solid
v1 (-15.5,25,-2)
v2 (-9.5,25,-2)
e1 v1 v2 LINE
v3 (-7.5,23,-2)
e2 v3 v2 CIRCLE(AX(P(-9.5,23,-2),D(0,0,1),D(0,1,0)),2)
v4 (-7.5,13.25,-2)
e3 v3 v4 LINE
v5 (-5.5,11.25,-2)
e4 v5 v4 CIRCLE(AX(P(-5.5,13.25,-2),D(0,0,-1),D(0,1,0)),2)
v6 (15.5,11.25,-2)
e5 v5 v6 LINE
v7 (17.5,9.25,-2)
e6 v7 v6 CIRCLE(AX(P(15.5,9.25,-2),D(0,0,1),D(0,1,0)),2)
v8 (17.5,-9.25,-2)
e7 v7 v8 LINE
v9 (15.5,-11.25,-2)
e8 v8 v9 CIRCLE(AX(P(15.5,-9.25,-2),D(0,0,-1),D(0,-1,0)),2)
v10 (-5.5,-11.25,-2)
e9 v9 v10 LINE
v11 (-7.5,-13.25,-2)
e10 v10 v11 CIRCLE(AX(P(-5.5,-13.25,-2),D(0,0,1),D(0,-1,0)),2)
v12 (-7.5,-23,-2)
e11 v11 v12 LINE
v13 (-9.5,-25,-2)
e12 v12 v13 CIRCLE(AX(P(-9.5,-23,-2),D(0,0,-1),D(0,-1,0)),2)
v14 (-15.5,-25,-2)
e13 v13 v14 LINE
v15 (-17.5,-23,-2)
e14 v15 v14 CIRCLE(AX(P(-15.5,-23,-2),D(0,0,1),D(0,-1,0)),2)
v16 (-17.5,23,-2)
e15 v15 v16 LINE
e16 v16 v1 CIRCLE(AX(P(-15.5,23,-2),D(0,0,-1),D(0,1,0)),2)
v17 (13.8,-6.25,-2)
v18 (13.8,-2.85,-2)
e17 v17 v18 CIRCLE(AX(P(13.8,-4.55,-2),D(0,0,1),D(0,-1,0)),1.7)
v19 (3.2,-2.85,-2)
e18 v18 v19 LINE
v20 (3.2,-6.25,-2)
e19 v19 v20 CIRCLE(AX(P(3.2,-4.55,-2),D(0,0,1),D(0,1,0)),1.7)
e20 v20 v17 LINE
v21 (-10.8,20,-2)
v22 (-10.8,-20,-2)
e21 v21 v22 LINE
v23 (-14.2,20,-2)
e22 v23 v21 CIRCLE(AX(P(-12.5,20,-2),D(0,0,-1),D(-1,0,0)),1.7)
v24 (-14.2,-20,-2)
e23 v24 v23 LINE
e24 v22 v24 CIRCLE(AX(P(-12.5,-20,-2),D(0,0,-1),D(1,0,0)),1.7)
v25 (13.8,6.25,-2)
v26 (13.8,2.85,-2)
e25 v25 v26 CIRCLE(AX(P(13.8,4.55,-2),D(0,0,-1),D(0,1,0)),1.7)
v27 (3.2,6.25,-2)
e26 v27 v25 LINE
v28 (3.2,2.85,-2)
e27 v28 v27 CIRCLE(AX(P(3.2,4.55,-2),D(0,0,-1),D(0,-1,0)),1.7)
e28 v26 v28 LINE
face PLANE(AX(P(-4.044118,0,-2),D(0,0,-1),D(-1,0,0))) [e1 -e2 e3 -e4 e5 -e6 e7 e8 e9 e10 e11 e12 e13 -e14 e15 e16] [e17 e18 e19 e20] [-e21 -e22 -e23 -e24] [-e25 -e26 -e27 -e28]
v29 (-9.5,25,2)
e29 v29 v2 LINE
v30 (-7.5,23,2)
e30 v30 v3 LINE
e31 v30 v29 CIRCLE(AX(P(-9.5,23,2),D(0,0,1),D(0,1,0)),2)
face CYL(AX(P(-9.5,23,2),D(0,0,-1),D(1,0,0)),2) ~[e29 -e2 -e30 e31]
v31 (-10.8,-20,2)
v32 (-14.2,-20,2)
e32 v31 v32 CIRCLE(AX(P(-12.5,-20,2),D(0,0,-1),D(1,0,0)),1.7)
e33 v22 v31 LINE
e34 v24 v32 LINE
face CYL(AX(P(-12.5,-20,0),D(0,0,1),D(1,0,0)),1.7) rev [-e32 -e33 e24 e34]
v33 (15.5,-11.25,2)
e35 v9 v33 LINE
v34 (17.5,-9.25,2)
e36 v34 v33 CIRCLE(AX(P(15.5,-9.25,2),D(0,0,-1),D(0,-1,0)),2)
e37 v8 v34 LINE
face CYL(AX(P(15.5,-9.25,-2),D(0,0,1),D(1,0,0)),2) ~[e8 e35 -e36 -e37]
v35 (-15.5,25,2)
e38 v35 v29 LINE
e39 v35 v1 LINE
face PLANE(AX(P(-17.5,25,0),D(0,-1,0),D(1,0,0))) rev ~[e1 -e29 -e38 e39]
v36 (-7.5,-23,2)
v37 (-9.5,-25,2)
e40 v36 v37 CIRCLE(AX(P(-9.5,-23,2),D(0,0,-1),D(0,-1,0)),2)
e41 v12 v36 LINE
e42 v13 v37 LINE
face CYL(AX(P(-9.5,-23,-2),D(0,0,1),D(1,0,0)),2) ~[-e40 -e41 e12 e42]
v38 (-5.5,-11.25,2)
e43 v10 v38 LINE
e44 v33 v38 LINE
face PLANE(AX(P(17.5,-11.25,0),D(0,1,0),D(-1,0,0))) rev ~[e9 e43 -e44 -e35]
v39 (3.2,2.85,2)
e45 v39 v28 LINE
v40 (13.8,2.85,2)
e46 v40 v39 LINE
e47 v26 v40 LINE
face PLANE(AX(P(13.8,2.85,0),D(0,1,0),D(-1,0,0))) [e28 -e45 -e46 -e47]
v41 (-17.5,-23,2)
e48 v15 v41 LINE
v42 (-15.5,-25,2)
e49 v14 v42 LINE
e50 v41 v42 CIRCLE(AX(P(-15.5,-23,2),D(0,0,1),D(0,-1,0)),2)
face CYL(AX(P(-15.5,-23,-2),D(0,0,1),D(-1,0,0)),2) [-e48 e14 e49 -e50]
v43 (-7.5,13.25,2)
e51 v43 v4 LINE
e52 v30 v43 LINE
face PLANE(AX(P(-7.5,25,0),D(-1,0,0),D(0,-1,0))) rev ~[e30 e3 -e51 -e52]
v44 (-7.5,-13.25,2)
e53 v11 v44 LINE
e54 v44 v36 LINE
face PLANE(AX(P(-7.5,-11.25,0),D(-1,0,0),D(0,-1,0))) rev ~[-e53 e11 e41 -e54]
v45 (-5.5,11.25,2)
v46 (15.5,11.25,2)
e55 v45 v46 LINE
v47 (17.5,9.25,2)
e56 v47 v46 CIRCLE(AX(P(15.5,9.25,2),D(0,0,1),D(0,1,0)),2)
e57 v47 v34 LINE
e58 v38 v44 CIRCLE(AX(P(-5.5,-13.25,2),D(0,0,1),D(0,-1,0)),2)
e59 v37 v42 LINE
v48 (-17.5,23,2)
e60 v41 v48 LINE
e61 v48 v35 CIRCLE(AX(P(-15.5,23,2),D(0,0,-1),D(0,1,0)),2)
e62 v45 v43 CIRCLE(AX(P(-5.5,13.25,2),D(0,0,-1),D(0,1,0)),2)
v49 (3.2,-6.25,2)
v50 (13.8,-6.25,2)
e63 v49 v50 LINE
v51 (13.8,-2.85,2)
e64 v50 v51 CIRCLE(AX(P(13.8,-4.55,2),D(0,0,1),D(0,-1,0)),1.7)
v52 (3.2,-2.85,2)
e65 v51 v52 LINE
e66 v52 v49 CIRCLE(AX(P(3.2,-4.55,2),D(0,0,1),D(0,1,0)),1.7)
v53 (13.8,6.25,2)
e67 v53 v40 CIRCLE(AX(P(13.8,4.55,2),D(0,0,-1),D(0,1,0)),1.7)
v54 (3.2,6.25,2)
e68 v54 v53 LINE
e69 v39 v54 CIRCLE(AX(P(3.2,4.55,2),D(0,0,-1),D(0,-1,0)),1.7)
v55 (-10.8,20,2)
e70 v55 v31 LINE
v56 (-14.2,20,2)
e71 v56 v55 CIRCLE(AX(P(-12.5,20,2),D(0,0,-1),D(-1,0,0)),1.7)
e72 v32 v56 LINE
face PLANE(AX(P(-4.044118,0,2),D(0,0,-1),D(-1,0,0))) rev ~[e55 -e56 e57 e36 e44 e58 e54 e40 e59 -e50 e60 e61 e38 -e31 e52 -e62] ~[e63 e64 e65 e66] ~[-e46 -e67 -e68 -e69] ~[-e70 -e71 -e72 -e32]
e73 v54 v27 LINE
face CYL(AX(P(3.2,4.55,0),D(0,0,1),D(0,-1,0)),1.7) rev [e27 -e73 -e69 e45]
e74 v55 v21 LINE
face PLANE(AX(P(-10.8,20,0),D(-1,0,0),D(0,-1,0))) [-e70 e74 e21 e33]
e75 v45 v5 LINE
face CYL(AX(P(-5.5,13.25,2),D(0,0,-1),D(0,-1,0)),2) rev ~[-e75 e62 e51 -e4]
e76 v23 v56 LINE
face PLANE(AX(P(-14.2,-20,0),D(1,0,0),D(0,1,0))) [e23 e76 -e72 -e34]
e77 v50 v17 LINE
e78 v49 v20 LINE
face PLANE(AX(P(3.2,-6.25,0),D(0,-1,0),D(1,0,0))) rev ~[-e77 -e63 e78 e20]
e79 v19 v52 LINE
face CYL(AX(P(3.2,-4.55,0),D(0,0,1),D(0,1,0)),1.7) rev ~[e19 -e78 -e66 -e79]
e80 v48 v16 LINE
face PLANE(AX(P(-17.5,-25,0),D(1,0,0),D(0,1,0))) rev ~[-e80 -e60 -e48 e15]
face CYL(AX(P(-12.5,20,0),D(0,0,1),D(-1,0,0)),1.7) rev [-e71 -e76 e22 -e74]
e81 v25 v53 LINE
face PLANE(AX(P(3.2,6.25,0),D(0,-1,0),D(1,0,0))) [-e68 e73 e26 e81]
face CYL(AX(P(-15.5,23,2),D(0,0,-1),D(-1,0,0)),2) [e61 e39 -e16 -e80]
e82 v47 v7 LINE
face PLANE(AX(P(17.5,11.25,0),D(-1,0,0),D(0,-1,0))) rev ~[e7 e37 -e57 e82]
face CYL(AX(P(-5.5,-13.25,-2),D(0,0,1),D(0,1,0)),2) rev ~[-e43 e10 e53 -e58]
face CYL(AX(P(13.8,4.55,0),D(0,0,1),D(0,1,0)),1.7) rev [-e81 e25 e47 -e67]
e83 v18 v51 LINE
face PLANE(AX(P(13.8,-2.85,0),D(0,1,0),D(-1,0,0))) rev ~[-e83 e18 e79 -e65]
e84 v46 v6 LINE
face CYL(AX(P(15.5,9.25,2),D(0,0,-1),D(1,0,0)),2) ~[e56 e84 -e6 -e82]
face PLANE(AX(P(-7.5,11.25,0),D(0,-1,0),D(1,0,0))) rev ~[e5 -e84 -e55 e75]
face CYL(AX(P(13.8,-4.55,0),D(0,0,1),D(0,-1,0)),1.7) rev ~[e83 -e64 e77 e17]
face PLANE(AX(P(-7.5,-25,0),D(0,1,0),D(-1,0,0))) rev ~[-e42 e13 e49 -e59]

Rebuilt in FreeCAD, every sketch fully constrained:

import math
import FreeCAD as App
import Part
import Sketcher


def edges_at(feature, points):
    """Names of the edges that pass closest to the given points."""
    edges = feature.Shape.Edges
    near = lambda p: min(range(len(edges)), key=lambda i: edges[i].distToShape(Part.Vertex(*p))[0])
    return sorted({f"Edge{near(p) + 1}" for p in points})

doc = App.newDocument("Part")
body = doc.addObject("PartDesign::Body", "Body")

# Sketch on XY plane
sketch1 = body.newObject("Sketcher::SketchObject", "Sketch")
sketch1.AttachmentSupport = (doc.getObject("XY_Plane"), [""])
sketch1.MapMode = "FlatFace"
sketch1.addGeometry([
    Part.LineSegment(App.Vector(-17.5, 25, 0), App.Vector(-17.5, -25, 0)),  # 0
    Part.LineSegment(App.Vector(-17.5, -25, 0), App.Vector(-7.5, -25, 0)),  # 1
    Part.LineSegment(App.Vector(-7.5, -25, 0), App.Vector(-7.5, -11.25, 0)),  # 2
    Part.LineSegment(App.Vector(-7.5, -11.25, 0), App.Vector(17.5, -11.25, 0)),  # 3
    Part.LineSegment(App.Vector(17.5, -11.25, 0), App.Vector(17.5, 11.25, 0)),  # 4
    Part.LineSegment(App.Vector(17.5, 11.25, 0), App.Vector(-7.5, 11.25, 0)),  # 5
    Part.LineSegment(App.Vector(-7.5, 11.25, 0), App.Vector(-7.5, 25, 0)),  # 6
    Part.LineSegment(App.Vector(-7.5, 25, 0), App.Vector(-17.5, 25, 0)),  # 7
    Part.ArcOfCircle(Part.Circle(App.Vector(3.2, -4.55, 0), App.Vector(0, 0, 1), 1.7), math.radians(90), math.radians(270)),  # 8
    Part.LineSegment(App.Vector(3.2, -2.85, 0), App.Vector(13.8, -2.85, 0)),  # 9
    Part.ArcOfCircle(Part.Circle(App.Vector(13.8, -4.55, 0), App.Vector(0, 0, 1), 1.7), math.radians(-90), math.radians(90)),  # 10
    Part.LineSegment(App.Vector(13.8, -6.25, 0), App.Vector(3.2, -6.25, 0)),  # 11
    Part.LineSegment(App.Vector(3.2, 6.25, 0), App.Vector(13.8, 6.25, 0)),  # 12
    Part.ArcOfCircle(Part.Circle(App.Vector(13.8, 4.55, 0), App.Vector(0, 0, 1), 1.7), math.radians(-90), math.radians(90)),  # 13
    Part.LineSegment(App.Vector(13.8, 2.85, 0), App.Vector(3.2, 2.85, 0)),  # 14
    Part.ArcOfCircle(Part.Circle(App.Vector(3.2, 4.55, 0), App.Vector(0, 0, 1), 1.7), math.radians(90), math.radians(270)),  # 15
    Part.LineSegment(App.Vector(-10.8, 20, 0), App.Vector(-10.8, -20, 0)),  # 16
    Part.ArcOfCircle(Part.Circle(App.Vector(-12.5, -20, 0), App.Vector(0, 0, 1), 1.7), math.radians(180), math.radians(360)),  # 17
    Part.LineSegment(App.Vector(-14.2, -20, 0), App.Vector(-14.2, 20, 0)),  # 18
    Part.ArcOfCircle(Part.Circle(App.Vector(-12.5, 20, 0), App.Vector(0, 0, 1), 1.7), math.radians(0), math.radians(180)),  # 19
], False)
sketch1.addConstraint([
    Sketcher.Constraint("Coincident", 0, 2, 1, 1),
    Sketcher.Constraint("Coincident", 1, 2, 2, 1),
    Sketcher.Constraint("Coincident", 2, 2, 3, 1),
    Sketcher.Constraint("Coincident", 3, 2, 4, 1),
    Sketcher.Constraint("Coincident", 4, 2, 5, 1),
    Sketcher.Constraint("Coincident", 5, 2, 6, 1),
    Sketcher.Constraint("Coincident", 6, 2, 7, 1),
    Sketcher.Constraint("Coincident", 7, 2, 0, 1),
    Sketcher.Constraint("Tangent", 8, 1, 9, 1),
    Sketcher.Constraint("Tangent", 9, 2, 10, 2),
    Sketcher.Constraint("Tangent", 10, 1, 11, 1),
    Sketcher.Constraint("Tangent", 11, 2, 8, 2),
    Sketcher.Constraint("Tangent", 12, 2, 13, 2),
    Sketcher.Constraint("Tangent", 13, 1, 14, 1),
    Sketcher.Constraint("Tangent", 14, 2, 15, 2),
    Sketcher.Constraint("Tangent", 15, 1, 12, 1),
    Sketcher.Constraint("Tangent", 16, 2, 17, 2),
    Sketcher.Constraint("Tangent", 17, 1, 18, 1),
    Sketcher.Constraint("Tangent", 18, 2, 19, 2),
    Sketcher.Constraint("Tangent", 19, 1, 16, 1),
    Sketcher.Constraint("Vertical", 0),
    Sketcher.Constraint("Horizontal", 1),
    Sketcher.Constraint("Vertical", 2),
    Sketcher.Constraint("Horizontal", 3),
    Sketcher.Constraint("Vertical", 4),
    Sketcher.Constraint("Horizontal", 5),
    Sketcher.Constraint("Vertical", 6),
    Sketcher.Constraint("Horizontal", 7),
    Sketcher.Constraint("Horizontal", 9),
    Sketcher.Constraint("Horizontal", 11),
    Sketcher.Constraint("Horizontal", 12),
    Sketcher.Constraint("Horizontal", 14),
    Sketcher.Constraint("Vertical", 16),
    Sketcher.Constraint("Vertical", 18),
    Sketcher.Constraint("Equal", 10, 13),
    Sketcher.Constraint("Equal", 15, 17),
    Sketcher.Constraint("Symmetric", 10, 3, 13, 3, -1),
    Sketcher.Constraint("Symmetric", 2, 2, 5, 2, -1),
    Sketcher.Constraint("Vertical", 8, 3, 15, 3),
    Sketcher.Constraint("Equal", 2, 6),
    Sketcher.Constraint("Radius", 8, 1.7),
    Sketcher.Constraint("DistanceX", 1, 1, 1, 2, 10.0),
    Sketcher.Constraint("DistanceX", 3, 1, 3, 2, 25.0),
    Sketcher.Constraint("DistanceY", 0, 2, 0, 1, 50.0),
    Sketcher.Constraint("DistanceY", 16, 2, 16, 1, 40.0),
    Sketcher.Constraint("DistanceX", 9, 1, 9, 2, 10.6),
    Sketcher.Constraint("DistanceY", 4, 1, 4, 2, 22.5),
    Sketcher.Constraint("DistanceY", 17, 3, -1, 1, 20.0),
    Sketcher.Constraint("DistanceX", 0, 2, 17, 3, 5.0),
    Sketcher.Constraint("DistanceY", 3, 2, 10, 1, 5.0),
    Sketcher.Constraint("DistanceX", 16, 2, 11, 2, 14.0),
    Sketcher.Constraint("DistanceX", -1, 1, 8, 3, 3.2),
])
pad1 = body.newObject("PartDesign::Pad", "Pad")
pad1.Profile = sketch1
pad1.Length = 4
pad1.Midplane = True
doc.recompute()

fillet = body.newObject("PartDesign::Fillet", "Fillet")
fillet.Base = (pad1, edges_at(pad1, [
    (-17.5, -25, 0),
    (-17.5, 25, 0),
    (-7.5, 25, 0),
    (-7.5, 11.25, 0),
    (17.5, 11.25, 0),
    (17.5, -11.25, 0),
    (-7.5, -11.25, 0),
    (-7.5, -25, 0),
]))
fillet.Radius = 2

doc.recompute()
